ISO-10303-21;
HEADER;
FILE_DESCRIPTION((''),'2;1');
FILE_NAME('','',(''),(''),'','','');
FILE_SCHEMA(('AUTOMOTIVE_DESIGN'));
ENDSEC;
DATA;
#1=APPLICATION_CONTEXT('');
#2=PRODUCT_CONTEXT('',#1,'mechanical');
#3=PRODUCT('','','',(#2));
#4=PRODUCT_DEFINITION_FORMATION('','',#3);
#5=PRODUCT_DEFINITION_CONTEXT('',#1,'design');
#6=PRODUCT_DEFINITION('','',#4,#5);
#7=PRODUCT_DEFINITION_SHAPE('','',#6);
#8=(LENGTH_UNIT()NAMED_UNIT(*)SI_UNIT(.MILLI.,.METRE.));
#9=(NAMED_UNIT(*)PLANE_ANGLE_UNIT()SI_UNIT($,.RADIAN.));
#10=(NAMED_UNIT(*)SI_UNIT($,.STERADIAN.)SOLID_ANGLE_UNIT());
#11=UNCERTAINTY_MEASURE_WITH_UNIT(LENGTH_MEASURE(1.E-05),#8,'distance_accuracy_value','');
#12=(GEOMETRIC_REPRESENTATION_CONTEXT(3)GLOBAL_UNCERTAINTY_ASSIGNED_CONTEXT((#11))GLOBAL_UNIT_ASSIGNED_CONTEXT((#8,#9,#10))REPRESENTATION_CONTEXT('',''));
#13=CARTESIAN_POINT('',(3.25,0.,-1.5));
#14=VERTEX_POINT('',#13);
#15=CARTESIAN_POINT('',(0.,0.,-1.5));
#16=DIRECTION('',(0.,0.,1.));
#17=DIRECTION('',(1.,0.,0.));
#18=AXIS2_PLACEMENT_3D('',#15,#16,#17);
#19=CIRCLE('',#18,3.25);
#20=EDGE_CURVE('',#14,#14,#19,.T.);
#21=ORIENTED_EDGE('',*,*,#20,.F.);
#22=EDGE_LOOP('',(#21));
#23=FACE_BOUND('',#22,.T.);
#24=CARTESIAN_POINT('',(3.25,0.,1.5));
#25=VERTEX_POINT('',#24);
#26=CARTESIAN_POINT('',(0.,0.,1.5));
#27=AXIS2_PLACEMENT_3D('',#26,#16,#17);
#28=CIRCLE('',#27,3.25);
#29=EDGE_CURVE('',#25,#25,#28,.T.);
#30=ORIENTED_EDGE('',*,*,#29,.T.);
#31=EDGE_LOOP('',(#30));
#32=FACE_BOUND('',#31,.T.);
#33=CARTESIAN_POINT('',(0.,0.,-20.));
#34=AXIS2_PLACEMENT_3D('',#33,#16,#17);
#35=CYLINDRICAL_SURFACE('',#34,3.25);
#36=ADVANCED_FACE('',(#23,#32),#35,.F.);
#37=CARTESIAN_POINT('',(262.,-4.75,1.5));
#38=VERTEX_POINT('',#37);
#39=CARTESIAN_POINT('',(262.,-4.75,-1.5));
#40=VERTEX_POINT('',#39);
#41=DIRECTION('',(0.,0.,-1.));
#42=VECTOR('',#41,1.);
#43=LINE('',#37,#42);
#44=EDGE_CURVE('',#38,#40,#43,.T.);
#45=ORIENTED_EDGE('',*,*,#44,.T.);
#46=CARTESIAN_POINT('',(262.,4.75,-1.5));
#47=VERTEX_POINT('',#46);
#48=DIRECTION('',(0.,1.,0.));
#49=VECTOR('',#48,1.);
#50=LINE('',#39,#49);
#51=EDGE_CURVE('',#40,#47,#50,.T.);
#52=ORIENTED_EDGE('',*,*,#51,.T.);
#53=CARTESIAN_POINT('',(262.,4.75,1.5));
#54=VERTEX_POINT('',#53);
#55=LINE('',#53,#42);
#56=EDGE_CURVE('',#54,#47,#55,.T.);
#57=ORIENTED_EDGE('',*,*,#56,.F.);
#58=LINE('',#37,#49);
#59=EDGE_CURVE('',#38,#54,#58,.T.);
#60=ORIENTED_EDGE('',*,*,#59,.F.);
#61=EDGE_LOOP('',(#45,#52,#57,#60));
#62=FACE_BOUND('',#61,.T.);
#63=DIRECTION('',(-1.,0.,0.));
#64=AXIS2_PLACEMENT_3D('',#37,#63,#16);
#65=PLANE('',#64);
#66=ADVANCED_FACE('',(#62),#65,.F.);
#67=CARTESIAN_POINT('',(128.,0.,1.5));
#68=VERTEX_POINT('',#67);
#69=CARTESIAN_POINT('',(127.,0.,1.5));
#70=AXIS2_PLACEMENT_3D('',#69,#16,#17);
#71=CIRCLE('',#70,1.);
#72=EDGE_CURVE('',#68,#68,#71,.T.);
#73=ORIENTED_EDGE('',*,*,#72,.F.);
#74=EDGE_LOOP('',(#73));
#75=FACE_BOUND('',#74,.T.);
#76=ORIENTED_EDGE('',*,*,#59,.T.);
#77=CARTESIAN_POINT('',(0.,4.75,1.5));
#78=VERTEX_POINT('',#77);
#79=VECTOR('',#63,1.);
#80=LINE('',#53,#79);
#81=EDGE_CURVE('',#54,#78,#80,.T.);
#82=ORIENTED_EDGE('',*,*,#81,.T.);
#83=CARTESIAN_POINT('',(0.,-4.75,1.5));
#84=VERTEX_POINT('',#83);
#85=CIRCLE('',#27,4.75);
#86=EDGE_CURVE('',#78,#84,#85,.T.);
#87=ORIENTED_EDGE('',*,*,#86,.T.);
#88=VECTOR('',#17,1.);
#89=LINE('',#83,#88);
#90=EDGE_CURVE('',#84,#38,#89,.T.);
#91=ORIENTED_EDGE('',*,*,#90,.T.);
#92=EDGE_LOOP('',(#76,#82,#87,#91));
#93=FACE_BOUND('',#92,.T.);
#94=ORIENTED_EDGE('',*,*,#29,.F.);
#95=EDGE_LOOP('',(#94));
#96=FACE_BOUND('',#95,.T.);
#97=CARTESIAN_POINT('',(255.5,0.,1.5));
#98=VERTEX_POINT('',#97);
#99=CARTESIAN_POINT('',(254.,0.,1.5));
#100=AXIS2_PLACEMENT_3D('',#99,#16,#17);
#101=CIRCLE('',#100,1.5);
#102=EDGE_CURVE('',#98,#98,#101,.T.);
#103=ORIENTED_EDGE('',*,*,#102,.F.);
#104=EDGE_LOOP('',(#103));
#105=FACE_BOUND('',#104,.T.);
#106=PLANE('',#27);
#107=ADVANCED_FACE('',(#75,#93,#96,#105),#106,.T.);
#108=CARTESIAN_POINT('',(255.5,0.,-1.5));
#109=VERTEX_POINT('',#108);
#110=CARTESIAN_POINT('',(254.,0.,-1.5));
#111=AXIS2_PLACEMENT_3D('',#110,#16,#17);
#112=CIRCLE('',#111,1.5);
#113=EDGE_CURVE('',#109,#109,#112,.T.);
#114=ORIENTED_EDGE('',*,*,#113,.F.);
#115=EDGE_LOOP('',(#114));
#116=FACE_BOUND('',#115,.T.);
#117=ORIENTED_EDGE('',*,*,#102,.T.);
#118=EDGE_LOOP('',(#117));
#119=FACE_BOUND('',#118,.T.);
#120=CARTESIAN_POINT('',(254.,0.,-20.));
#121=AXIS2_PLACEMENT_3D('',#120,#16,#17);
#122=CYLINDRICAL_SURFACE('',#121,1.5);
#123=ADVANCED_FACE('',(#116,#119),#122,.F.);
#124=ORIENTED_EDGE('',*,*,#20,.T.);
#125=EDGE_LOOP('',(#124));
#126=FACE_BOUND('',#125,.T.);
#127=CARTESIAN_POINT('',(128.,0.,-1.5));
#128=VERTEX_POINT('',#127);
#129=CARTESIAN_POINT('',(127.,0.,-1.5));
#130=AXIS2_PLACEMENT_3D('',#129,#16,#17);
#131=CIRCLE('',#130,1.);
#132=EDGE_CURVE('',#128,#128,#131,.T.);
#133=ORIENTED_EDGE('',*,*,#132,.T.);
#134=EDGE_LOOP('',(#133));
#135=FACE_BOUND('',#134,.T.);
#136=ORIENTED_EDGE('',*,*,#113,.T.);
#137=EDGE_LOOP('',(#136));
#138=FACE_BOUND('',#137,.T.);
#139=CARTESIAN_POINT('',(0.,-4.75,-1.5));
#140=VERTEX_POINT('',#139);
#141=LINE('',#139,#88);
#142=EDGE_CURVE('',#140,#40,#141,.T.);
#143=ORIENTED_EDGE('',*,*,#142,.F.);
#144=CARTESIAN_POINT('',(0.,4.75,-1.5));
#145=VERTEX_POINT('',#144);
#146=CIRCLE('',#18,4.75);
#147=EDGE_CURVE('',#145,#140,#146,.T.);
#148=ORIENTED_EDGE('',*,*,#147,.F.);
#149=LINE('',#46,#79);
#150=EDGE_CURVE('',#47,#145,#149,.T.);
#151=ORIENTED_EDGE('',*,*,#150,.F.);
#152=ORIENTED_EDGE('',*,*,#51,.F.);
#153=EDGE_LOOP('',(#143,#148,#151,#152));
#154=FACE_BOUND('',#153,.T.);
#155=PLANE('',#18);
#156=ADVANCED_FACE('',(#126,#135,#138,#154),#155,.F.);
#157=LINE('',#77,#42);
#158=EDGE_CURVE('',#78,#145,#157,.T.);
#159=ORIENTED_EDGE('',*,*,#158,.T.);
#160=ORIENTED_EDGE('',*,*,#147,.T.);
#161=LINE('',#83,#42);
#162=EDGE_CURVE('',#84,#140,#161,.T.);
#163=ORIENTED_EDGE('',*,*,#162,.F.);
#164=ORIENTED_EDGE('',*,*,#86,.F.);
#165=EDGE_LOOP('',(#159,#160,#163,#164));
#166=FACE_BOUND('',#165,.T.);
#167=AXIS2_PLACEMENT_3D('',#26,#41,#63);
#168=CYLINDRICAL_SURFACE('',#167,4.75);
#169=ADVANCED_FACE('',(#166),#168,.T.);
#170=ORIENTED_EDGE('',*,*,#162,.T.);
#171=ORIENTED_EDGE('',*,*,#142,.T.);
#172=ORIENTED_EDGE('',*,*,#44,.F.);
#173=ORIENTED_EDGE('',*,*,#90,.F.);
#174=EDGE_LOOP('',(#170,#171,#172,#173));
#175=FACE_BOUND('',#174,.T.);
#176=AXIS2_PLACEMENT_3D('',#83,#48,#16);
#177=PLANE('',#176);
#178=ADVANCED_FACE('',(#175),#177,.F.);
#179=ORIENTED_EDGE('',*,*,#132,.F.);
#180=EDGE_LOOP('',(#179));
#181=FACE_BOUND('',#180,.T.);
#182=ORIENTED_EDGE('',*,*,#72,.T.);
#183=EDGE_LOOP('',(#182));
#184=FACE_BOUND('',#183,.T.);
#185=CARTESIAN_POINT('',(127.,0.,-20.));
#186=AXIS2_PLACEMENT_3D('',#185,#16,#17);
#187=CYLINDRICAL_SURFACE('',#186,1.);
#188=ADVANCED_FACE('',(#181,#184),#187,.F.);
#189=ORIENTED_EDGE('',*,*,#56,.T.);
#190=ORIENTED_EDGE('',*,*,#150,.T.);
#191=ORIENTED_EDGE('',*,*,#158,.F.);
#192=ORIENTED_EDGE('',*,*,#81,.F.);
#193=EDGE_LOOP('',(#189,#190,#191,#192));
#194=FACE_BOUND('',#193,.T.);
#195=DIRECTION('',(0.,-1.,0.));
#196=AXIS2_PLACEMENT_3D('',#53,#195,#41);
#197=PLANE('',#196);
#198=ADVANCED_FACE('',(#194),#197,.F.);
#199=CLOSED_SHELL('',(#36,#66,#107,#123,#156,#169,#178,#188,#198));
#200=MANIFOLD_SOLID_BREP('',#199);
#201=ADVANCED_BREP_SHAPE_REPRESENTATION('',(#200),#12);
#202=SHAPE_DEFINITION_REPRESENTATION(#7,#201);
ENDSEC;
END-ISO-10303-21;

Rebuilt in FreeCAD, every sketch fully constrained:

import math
import FreeCAD as App
import Part
import Sketcher

doc = App.newDocument("Part")
body = doc.addObject("PartDesign::Body", "Body")

sketch1 = doc.addObject("Sketcher::SketchObject", "Sketch")
body.addObject(sketch1)
sketch1.AttachmentSupport = (doc.XY_Plane, [""])
sketch1.MapMode = "FlatFace"
sketch1.addGeometry([
    Part.LineSegment(App.Vector(0, -4.75, 0), App.Vector(262, -4.75, 0)),
    Part.LineSegment(App.Vector(262, -4.75, 0), App.Vector(262, 4.75, 0)),
    Part.LineSegment(App.Vector(262, 4.75, 0), App.Vector(0, 4.75, 0)),
    Part.ArcOfCircle(Part.Circle(App.Vector(0, 0, 0), App.Vector(0, 0, 1), 4.75), math.radians(90), math.radians(270)),
], False)
sketch1.addConstraint([
    Sketcher.Constraint("Coincident", 0, 2, 1, 1),
    Sketcher.Constraint("Coincident", 1, 2, 2, 1),
    Sketcher.Constraint("Tangent", 2, 2, 3, 1),
    Sketcher.Constraint("Tangent", 3, 2, 0, 1),
    Sketcher.Constraint("Horizontal", 0),
    Sketcher.Constraint("Vertical", 1),
    Sketcher.Constraint("Horizontal", 2),
    Sketcher.Constraint("Coincident", 3, 3, -1, 1),
    Sketcher.Constraint("DistanceX", 0, 1, 0, 2, 262.0),
    Sketcher.Constraint("Radius", 3, 4.75),
])
pad1 = doc.addObject("PartDesign::Pad", "Pad")
body.addObject(pad1)
pad1.Profile = sketch1
pad1.Length = 3
pad1.Midplane = True

sketch2 = doc.addObject("Sketcher::SketchObject", "Sketch001")
body.addObject(sketch2)
sketch2.AttachmentSupport = (doc.XY_Plane, [""])
sketch2.MapMode = "FlatFace"
sketch2.addGeometry([
    Part.Circle(App.Vector(0, 0, 0), App.Vector(0, 0, 1), 3.25),
    Part.Circle(App.Vector(127, 0, 0), App.Vector(0, 0, 1), 1),
    Part.Circle(App.Vector(254, 0, 0), App.Vector(0, 0, 1), 1.5),
], False)
sketch2.addConstraint([
    Sketcher.Constraint("Coincident", 0, 3, -1, 1),
    Sketcher.Constraint("PointOnObject", 1, 3, -1),
    Sketcher.Constraint("PointOnObject", 2, 3, -1),
    Sketcher.Constraint("Diameter", 1, 2.0),
    Sketcher.Constraint("Diameter", 2, 3.0),
    Sketcher.Constraint("Diameter", 0, 6.5),
    Sketcher.Constraint("DistanceX", -1, 1, 1, 3, 127.0),
    Sketcher.Constraint("DistanceX", -1, 1, 2, 3, 254.0),
])
pocket1 = doc.addObject("PartDesign::Pocket", "Pocket")
body.addObject(pocket1)
pocket1.Profile = sketch2
pocket1.Length = 40
pocket1.Midplane = True

doc.recompute()
